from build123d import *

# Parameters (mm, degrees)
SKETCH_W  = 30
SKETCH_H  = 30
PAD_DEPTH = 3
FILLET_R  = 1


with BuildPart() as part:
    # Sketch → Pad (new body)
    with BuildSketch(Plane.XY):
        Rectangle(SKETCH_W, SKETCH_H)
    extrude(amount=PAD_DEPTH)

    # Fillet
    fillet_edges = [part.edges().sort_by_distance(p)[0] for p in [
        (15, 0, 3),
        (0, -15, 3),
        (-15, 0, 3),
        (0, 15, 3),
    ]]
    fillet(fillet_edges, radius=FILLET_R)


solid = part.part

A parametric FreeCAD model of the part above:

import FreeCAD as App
import Part
import Sketcher

V = App.Vector
Q = App.Units.Quantity


def edges_at(feature, points):
    """Names of the edges that pass closest to the given points."""
    edges = feature.Shape.Edges
    near = lambda p: min(range(len(edges)), key=lambda i: edges[i].distToShape(Part.Vertex(*p))[0])
    return sorted({f"Edge{near(p) + 1}" for p in points})

doc = App.newDocument("Part")
body = doc.addObject("PartDesign::Body", "Body")

sketch1 = body.newObject("Sketcher::SketchObject", "Sketch")
sketch1.AttachmentSupport = (doc.getObject("XY_Plane"), [""])
sketch1.MapMode = "FlatFace"
sketch1.addGeometry(Part.LineSegment(V(-15, 15, 0), V(-15, -15, 0)), False)
sketch1.addGeometry(Part.LineSegment(V(-15, -15, 0), V(15, -15, 0)), False)
sketch1.addGeometry(Part.LineSegment(V(15, -15, 0), V(15, 15, 0)), False)
sketch1.addGeometry(Part.LineSegment(V(15, 15, 0), V(-15, 15, 0)), False)
sketch1.addConstraint(Sketcher.Constraint("Coincident", 0, 2, 1, 1))
sketch1.addConstraint(Sketcher.Constraint("Coincident", 1, 2, 2, 1))
sketch1.addConstraint(Sketcher.Constraint("Coincident", 2, 2, 3, 1))
sketch1.addConstraint(Sketcher.Constraint("Coincident", 3, 2, 0, 1))
sketch1.addConstraint(Sketcher.Constraint("Vertical", 0))
sketch1.addConstraint(Sketcher.Constraint("Horizontal", 1))
sketch1.addConstraint(Sketcher.Constraint("Vertical", 2))
sketch1.addConstraint(Sketcher.Constraint("Horizontal", 3))
sketch1.addConstraint(Sketcher.Constraint("Symmetric", 0, 2, 2, 2, -1, 1))
sketch1.addConstraint(Sketcher.Constraint("Equal", 3, 0))
sketch1.addConstraint(Sketcher.Constraint("DistanceX", 1, 1, 1, 2, Q("30 mm")))
pad1 = body.newObject("PartDesign::Pad", "Pad")
pad1.Profile = sketch1
pad1.Length = 3
doc.recompute()

fillet = body.newObject("PartDesign::Fillet", "Fillet")
fillet.Base = (pad1, edges_at(pad1, [
    (15, 0, 3),
    (0, -15, 3),
    (-15, 0, 3),
    (0, 15, 3),
]))
fillet.Radius = 1

doc.recompute()
